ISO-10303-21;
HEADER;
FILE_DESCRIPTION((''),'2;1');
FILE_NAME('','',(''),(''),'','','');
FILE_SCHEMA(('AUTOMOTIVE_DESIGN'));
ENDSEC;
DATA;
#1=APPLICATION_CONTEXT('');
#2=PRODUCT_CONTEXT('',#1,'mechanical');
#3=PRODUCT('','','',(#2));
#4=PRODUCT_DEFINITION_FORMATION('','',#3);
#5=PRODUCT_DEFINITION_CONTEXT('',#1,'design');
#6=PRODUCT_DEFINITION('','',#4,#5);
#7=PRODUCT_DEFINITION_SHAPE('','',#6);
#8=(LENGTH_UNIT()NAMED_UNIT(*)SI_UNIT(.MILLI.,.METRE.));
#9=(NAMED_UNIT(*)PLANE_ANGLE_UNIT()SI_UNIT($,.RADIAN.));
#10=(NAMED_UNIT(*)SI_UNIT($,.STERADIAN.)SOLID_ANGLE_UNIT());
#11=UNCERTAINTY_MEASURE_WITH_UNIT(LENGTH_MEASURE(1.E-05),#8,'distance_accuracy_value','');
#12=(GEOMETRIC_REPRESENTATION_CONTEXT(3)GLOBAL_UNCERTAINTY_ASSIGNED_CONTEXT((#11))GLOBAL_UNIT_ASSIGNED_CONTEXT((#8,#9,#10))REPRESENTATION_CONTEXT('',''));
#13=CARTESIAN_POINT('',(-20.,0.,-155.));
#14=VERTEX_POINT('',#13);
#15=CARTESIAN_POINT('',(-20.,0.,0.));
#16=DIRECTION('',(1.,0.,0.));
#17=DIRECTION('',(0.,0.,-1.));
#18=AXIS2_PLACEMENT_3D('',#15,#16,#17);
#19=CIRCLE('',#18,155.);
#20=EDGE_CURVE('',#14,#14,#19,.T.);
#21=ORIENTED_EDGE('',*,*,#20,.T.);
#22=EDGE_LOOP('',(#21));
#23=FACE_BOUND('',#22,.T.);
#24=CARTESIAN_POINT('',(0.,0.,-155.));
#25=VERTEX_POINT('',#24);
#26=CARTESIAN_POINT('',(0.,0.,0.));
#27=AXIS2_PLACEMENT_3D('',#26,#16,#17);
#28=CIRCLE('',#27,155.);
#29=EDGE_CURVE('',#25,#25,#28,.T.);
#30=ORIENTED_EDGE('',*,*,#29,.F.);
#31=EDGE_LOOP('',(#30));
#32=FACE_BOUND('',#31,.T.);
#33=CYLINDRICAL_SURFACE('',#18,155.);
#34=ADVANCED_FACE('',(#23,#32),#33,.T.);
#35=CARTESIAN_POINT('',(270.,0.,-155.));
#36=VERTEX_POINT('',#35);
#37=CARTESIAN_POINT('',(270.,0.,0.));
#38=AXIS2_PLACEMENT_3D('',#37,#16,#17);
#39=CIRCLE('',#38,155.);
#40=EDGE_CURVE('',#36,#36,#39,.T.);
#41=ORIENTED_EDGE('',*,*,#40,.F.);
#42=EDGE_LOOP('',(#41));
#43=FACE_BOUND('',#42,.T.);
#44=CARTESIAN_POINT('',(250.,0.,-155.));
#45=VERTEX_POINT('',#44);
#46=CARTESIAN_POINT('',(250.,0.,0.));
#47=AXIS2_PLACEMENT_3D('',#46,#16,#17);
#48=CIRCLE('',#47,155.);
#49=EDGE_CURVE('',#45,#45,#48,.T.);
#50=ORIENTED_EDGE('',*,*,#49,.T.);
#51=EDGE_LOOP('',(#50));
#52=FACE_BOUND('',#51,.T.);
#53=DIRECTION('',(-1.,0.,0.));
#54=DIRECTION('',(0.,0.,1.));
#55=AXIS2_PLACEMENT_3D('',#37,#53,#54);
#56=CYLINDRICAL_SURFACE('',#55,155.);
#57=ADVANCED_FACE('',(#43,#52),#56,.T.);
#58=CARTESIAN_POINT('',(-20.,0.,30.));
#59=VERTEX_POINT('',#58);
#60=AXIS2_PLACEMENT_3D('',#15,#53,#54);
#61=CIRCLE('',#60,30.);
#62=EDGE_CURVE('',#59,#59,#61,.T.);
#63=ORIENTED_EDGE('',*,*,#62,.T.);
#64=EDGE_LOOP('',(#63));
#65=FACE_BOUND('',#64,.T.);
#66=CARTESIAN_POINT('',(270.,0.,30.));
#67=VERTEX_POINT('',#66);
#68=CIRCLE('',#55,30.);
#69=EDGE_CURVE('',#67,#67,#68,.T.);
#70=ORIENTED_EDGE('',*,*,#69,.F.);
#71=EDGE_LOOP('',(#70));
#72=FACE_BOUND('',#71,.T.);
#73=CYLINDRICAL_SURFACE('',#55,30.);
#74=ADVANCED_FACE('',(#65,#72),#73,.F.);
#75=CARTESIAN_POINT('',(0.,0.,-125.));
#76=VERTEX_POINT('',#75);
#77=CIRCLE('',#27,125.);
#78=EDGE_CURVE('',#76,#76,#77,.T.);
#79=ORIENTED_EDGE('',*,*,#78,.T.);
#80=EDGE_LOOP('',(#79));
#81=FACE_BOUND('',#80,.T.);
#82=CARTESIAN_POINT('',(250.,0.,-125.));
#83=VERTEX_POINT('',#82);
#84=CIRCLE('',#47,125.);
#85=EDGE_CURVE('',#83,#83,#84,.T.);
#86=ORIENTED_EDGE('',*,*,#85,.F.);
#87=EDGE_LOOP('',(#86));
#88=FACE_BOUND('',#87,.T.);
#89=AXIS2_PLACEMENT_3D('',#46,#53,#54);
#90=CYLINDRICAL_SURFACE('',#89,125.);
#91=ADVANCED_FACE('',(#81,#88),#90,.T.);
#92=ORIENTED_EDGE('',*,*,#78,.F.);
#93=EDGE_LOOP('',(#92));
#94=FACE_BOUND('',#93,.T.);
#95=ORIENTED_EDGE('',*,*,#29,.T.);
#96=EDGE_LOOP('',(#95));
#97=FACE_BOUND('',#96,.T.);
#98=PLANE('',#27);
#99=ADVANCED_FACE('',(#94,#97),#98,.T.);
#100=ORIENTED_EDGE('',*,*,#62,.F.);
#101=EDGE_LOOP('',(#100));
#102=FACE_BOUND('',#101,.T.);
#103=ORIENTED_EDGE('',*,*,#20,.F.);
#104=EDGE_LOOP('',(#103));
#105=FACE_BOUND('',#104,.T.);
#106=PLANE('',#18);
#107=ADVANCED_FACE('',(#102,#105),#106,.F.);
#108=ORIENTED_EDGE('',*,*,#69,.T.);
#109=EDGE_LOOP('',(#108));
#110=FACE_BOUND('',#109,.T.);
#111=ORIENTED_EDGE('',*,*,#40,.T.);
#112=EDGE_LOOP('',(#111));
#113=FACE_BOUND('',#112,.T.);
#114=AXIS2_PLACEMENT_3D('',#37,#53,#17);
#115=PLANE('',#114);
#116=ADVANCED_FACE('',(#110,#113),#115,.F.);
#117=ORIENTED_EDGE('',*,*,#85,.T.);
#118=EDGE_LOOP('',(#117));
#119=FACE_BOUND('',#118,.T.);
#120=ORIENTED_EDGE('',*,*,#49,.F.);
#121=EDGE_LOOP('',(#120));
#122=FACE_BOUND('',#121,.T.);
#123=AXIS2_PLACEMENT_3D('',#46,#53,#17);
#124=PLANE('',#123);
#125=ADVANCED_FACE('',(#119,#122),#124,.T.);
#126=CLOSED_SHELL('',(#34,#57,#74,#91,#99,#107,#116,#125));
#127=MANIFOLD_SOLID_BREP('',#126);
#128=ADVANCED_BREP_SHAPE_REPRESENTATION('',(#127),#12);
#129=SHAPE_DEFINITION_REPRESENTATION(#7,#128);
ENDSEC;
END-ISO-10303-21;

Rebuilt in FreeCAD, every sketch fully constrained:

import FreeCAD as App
import Part
import Sketcher
Q = App.Units.Quantity

doc = App.newDocument("Part")
body = doc.addObject("PartDesign::Body", "Body")

# Sketch on YZ plane
sketch1 = doc.addObject("Sketcher::SketchObject", "Sketch")
body.addObject(sketch1)
sketch1.AttachmentSupport = (doc.YZ_Plane, [""])
sketch1.MapMode = "FlatFace"
sketch1.addGeometry(Part.Circle(App.Vector(0, 0, 0), App.Vector(0, 0, 1), 125), False)
sketch1.addConstraint(Sketcher.Constraint("Coincident", 0, 3, -1, 1))
sketch1.addConstraint(Sketcher.Constraint("Diameter", 0, Q("250 mm")))
pad1 = doc.addObject("PartDesign::Pad", "Pad")
body.addObject(pad1)
pad1.Profile = sketch1
pad1.Length = 250

# Sketch on YZ plane
sketch2 = doc.addObject("Sketcher::SketchObject", "Sketch001")
body.addObject(sketch2)
sketch2.AttachmentSupport = (doc.YZ_Plane, [""])
sketch2.MapMode = "FlatFace"
sketch2.addGeometry(Part.Circle(App.Vector(0, 0, 0), App.Vector(0, 0, 1), 155), False)
sketch2.addConstraint(Sketcher.Constraint("Coincident", 0, 3, -1, 1))
sketch2.addConstraint(Sketcher.Constraint("Diameter", 0, Q("310 mm")))
pad2 = doc.addObject("PartDesign::Pad", "Pad001")
body.addObject(pad2)
pad2.Profile = sketch2
pad2.Length = 20
pad2.Reversed = True
doc.recompute()

datumplane = doc.addObject("PartDesign::Plane", "DatumPlane")
body.addObject(datumplane)
datumplane.AttachmentSupport = (doc.YZ_Plane, [""])
datumplane.MapMode = "FlatFace"
datumplane.AttachmentOffset = App.Placement(App.Vector(0, 0, 125), App.Rotation())
mirrored = doc.addObject("PartDesign::Mirrored", "Mirrored")
body.addObject(mirrored)
mirrored.Originals = [pad2]
mirrored.MirrorPlane = (datumplane, [""])
body.Tip = mirrored

# Sketch on YZ plane
sketch3 = doc.addObject("Sketcher::SketchObject", "Sketch002")
body.addObject(sketch3)
sketch3.AttachmentSupport = (doc.YZ_Plane, [""])
sketch3.MapMode = "FlatFace"
sketch3.AttachmentOffset = App.Placement(App.Vector(0, 0, -20), App.Rotation())
sketch3.addGeometry(Part.Circle(App.Vector(0, 0, 0), App.Vector(0, 0, 1), 30), False)
sketch3.addConstraint(Sketcher.Constraint("Coincident", 0, 3, -1, 1))
sketch3.addConstraint(Sketcher.Constraint("Diameter", 0, Q("60 mm")))
pocket1 = doc.addObject("PartDesign::Pocket", "Pocket")
body.addObject(pocket1)
pocket1.Profile = sketch3
pocket1.Type = "ThroughAll"
pocket1.Reversed = True

doc.recompute()
